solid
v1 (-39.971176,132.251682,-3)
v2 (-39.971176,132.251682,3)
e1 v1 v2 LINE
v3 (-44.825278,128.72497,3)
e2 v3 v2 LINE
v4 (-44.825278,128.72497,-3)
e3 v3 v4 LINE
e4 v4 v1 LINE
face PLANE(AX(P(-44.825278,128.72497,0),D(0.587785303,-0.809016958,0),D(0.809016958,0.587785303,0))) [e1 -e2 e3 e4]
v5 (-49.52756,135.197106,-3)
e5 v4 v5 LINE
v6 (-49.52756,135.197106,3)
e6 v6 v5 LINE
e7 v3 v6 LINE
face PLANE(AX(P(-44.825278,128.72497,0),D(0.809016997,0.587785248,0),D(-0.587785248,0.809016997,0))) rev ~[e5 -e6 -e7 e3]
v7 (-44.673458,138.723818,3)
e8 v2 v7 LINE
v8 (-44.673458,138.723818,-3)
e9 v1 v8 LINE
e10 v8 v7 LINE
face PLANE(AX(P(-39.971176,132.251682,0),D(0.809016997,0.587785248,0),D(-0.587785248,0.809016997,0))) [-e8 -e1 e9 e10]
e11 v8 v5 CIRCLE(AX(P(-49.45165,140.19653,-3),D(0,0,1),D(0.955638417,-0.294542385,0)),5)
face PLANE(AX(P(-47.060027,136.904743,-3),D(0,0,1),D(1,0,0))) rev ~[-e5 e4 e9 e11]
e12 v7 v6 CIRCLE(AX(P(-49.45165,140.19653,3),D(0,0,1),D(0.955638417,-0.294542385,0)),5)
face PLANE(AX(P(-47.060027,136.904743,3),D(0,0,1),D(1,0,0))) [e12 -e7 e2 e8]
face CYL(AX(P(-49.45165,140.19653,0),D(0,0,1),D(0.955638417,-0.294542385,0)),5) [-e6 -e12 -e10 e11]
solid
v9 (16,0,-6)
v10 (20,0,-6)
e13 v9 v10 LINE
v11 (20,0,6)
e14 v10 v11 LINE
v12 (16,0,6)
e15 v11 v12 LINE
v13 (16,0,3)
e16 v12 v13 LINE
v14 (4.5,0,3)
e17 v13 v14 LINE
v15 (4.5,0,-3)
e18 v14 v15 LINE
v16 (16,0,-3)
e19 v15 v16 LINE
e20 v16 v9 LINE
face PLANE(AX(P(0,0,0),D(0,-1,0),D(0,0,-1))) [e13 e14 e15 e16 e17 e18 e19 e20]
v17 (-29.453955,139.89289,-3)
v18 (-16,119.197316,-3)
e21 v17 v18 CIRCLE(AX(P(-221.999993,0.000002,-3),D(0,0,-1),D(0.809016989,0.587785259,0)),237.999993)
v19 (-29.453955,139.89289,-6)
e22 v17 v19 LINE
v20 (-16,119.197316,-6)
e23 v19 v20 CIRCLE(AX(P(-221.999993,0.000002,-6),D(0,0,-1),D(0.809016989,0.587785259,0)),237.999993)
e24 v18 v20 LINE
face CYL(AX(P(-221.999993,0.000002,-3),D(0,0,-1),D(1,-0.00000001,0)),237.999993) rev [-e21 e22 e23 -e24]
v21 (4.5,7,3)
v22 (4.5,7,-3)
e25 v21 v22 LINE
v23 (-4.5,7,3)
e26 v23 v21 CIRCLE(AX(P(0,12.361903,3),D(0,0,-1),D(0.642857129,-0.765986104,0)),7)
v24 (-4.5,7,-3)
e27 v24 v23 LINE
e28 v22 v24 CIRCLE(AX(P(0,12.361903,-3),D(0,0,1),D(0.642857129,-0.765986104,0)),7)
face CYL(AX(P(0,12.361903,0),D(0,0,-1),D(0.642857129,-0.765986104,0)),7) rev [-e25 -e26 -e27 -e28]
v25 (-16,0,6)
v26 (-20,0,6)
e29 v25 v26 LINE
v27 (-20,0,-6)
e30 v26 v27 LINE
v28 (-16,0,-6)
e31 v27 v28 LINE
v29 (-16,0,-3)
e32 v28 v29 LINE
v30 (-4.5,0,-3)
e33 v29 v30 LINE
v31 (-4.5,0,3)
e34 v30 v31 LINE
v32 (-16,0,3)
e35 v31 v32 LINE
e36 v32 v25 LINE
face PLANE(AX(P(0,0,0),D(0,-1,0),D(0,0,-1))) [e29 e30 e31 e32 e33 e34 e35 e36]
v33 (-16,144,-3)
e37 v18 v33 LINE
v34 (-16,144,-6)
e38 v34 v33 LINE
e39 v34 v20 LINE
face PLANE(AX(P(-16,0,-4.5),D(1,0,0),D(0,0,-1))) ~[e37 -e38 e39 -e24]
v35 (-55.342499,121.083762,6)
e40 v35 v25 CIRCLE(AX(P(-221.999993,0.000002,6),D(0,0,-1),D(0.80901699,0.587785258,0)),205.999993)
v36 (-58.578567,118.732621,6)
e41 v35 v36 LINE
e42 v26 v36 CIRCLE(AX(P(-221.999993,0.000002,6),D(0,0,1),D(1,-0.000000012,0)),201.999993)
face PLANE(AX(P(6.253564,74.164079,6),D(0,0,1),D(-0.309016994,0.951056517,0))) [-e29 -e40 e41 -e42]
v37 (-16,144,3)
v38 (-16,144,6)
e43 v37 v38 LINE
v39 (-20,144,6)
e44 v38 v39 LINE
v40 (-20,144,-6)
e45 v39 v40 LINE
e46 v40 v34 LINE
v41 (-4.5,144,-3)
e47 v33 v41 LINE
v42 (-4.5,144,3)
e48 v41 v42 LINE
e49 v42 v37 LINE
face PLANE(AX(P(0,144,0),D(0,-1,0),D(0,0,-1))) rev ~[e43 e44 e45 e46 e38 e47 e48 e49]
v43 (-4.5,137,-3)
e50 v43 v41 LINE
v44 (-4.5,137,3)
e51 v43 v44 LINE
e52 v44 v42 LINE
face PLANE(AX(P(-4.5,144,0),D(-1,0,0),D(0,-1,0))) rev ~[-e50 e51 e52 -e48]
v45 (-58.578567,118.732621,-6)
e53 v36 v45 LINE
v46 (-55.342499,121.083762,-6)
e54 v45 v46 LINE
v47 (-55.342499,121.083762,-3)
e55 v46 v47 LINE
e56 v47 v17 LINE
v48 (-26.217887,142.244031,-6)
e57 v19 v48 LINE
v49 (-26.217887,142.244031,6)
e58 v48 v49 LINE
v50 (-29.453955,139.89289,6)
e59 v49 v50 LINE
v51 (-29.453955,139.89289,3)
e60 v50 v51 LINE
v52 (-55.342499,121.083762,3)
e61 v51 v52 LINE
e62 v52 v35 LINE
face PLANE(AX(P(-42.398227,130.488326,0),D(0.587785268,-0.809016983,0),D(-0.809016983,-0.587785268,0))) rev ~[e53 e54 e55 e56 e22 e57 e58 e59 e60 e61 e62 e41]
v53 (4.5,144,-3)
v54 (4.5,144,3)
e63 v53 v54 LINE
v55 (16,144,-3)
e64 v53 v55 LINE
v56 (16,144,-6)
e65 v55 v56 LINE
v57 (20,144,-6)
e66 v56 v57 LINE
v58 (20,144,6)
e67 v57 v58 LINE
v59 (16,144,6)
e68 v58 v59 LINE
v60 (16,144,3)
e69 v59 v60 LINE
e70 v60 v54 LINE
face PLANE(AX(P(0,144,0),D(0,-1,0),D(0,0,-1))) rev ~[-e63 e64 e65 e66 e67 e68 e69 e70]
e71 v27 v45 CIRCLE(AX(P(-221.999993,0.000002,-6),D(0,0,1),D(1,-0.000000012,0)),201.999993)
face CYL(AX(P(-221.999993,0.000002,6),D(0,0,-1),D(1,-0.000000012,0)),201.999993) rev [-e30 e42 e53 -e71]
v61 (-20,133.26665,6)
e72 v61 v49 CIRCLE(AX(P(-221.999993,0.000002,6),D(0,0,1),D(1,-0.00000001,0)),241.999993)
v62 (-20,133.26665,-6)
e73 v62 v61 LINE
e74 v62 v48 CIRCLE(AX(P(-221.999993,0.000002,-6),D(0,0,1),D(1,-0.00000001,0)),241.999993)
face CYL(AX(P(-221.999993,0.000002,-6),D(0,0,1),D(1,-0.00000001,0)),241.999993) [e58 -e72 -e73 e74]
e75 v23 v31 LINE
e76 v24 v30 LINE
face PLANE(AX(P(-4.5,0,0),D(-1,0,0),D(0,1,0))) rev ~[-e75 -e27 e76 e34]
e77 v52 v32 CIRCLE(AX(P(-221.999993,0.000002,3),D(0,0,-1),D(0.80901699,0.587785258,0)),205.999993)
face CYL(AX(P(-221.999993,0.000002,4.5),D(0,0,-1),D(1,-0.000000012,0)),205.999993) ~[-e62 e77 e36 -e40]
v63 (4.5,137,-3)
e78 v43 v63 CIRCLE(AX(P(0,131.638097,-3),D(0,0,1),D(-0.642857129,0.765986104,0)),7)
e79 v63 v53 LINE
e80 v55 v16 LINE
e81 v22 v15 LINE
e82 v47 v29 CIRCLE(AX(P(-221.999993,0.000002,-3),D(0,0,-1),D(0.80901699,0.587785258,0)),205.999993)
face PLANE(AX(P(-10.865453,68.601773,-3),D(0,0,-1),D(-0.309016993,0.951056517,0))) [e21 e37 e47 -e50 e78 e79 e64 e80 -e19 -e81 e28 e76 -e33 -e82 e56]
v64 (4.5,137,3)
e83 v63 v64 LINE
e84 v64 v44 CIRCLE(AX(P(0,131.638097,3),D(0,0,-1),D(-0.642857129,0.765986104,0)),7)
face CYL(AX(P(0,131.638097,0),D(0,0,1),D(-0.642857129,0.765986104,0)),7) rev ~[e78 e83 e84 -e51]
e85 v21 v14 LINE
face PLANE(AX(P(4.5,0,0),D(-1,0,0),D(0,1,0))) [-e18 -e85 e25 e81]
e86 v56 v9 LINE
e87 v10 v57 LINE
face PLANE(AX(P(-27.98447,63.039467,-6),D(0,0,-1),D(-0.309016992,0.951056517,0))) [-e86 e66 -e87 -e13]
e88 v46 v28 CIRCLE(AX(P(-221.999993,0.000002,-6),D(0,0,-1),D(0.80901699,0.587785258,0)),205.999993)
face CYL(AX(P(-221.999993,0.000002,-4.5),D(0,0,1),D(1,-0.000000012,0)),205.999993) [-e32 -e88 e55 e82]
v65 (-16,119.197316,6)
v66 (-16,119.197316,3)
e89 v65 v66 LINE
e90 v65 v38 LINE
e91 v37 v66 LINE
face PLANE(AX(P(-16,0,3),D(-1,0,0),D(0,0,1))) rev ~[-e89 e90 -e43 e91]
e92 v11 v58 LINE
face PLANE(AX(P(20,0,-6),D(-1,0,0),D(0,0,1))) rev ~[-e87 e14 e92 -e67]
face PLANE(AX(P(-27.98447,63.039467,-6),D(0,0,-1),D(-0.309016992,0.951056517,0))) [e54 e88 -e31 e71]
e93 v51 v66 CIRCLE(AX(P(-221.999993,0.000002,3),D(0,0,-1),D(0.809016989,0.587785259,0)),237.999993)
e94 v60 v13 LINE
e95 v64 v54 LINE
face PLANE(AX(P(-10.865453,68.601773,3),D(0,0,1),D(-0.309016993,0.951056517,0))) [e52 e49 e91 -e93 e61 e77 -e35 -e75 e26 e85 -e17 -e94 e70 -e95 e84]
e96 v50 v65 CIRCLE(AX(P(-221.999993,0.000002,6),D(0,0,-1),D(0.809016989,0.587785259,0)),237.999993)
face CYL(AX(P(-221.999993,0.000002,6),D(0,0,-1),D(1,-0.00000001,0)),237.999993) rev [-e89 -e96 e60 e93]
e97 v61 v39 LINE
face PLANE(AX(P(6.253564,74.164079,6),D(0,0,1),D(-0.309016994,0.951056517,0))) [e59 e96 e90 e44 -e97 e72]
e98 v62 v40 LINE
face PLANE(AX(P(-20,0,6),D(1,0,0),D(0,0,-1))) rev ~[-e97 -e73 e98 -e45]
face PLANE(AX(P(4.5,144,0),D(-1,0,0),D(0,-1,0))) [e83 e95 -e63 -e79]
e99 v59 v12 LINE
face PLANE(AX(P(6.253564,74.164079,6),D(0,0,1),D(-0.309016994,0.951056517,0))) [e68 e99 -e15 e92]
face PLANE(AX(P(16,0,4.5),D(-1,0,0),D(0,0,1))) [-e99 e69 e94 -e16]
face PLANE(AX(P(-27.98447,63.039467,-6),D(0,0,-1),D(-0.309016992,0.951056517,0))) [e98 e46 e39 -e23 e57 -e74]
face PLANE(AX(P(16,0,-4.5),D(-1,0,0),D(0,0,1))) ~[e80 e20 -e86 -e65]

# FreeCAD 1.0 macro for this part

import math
import FreeCAD as App
import Part
import Sketcher
Q = App.Units.Quantity


def add_polygon(sketch, points):
    """Adds a closed chain of lines whose ends are joined by coincident constraints."""
    first, n = sketch.GeometryCount, len(points)
    for a, b in zip(points, points[1:] + points[:1]):
        sketch.addGeometry(Part.LineSegment(App.Vector(*a, 0), App.Vector(*b, 0)), False)
    for i in range(n):
        sketch.addConstraint(Sketcher.Constraint("Coincident", first + i, 2, first + (i + 1) % n, 1))

doc = App.newDocument("Part")
body = doc.addObject("PartDesign::Body", "Body")

sketch1 = body.newObject("Sketcher::SketchObject", "Sketch")
sketch1.AttachmentSupport = (doc.getObject("XZ_Plane"), [""])
sketch1.MapMode = "FlatFace"
add_polygon(sketch1, [(-20, 6), (-20, -6), (-16, -6), (-16, -3), (16, -3), (16, -6), (20, -6), (20, 6), (16, 6), (16, 3), (-16, 3), (-16, 6)])
sketch1.addConstraint([
    Sketcher.Constraint("Vertical", 0),
    Sketcher.Constraint("Horizontal", 1),
    Sketcher.Constraint("Vertical", 2),
    Sketcher.Constraint("Horizontal", 3),
    Sketcher.Constraint("Vertical", 4),
    Sketcher.Constraint("Horizontal", 5),
    Sketcher.Constraint("Vertical", 6),
    Sketcher.Constraint("Horizontal", 7),
    Sketcher.Constraint("Vertical", 8),
    Sketcher.Constraint("Horizontal", 9),
    Sketcher.Constraint("Vertical", 10),
    Sketcher.Constraint("Horizontal", 11),
    Sketcher.Constraint("Symmetric", 0, 2, 6, 2, -1, 1),
    Sketcher.Constraint("Symmetric", 2, 2, 8, 2, -1, 1),
    Sketcher.Constraint("Symmetric", 4, 2, 10, 2, -1, 1),
    Sketcher.Constraint("Symmetric", 1, 2, 4, 2, -2),
    Sketcher.Constraint("DistanceX", 1, 1, 1, 2, 4.0),
    Sketcher.Constraint("DistanceX", 3, 1, 3, 2, 32.0),
    Sketcher.Constraint("DistanceY", 0, 2, 0, 1, 12.0),
    Sketcher.Constraint("DistanceY", 2, 1, 2, 2, 3.0),
])

sketch2 = body.newObject("Sketcher::SketchObject", "Sketch001")
sketch2.AttachmentSupport = (doc.getObject("XY_Plane"), [""])
sketch2.MapMode = "FlatFace"
sketch2.addGeometry(Part.ArcOfCircle(Part.Circle(App.Vector(-222, 0, 0), App.Vector(0, 0, 1), 222), math.radians(0), math.radians(36)), False)
sketch2.addConstraint([
    Sketcher.Constraint("Coincident", 0, 1, -1, 1),
    Sketcher.Constraint("Radius", 0, 221.999993),
    Sketcher.Constraint("DistanceX", 0, 2, -1, 1, 42.398227),
    Sketcher.Constraint("DistanceY", -1, 1, 0, 2, 130.488326),
])
doc.recompute()

additivepipe = body.newObject("PartDesign::AdditivePipe", "AdditivePipe")
additivepipe.Profile = sketch1
additivepipe.Spine = (sketch2, ["Edge1"])

sketch3 = body.newObject("Sketcher::SketchObject", "Sketch002")
sketch3.AttachmentSupport = (doc.getObject("XZ_Plane"), [""])
sketch3.MapMode = "FlatFace"
add_polygon(sketch3, [(-20, 6), (-20, -6), (-16, -6), (-16, -3), (16, -3), (16, -6), (20, -6), (20, 6), (16, 6), (16, 3), (-16, 3), (-16, 6)])
sketch3.addConstraint([
    Sketcher.Constraint("Vertical", 0),
    Sketcher.Constraint("Horizontal", 1),
    Sketcher.Constraint("Vertical", 2),
    Sketcher.Constraint("Horizontal", 3),
    Sketcher.Constraint("Vertical", 4),
    Sketcher.Constraint("Horizontal", 5),
    Sketcher.Constraint("Vertical", 6),
    Sketcher.Constraint("Horizontal", 7),
    Sketcher.Constraint("Vertical", 8),
    Sketcher.Constraint("Horizontal", 9),
    Sketcher.Constraint("Vertical", 10),
    Sketcher.Constraint("Horizontal", 11),
    Sketcher.Constraint("Symmetric", 0, 2, 6, 2, -1, 1),
    Sketcher.Constraint("Symmetric", 2, 2, 8, 2, -1, 1),
    Sketcher.Constraint("Symmetric", 4, 2, 10, 2, -1, 1),
    Sketcher.Constraint("Symmetric", 1, 2, 4, 2, -2),
    Sketcher.Constraint("DistanceX", 1, 1, 1, 2, 4.0),
    Sketcher.Constraint("DistanceX", 3, 1, 3, 2, 32.0),
    Sketcher.Constraint("DistanceY", 0, 2, 0, 1, 12.0),
    Sketcher.Constraint("DistanceY", 2, 1, 2, 2, 3.0),
])

sketch4 = body.newObject("Sketcher::SketchObject", "Sketch003")
sketch4.AttachmentSupport = (doc.getObject("XY_Plane"), [""])
sketch4.MapMode = "FlatFace"
sketch4.addGeometry(Part.LineSegment(App.Vector(0, 0, 0), App.Vector(0, 144, 0)), False)
sketch4.addConstraint([
    Sketcher.Constraint("Vertical", 0),
    Sketcher.Constraint("Coincident", 0, 1, -1, 1),
    Sketcher.Constraint("DistanceY", 0, 1, 0, 2, 144.0),
])
doc.recompute()

additivepipe2 = body.newObject("PartDesign::AdditivePipe", "AdditivePipe001")
additivepipe2.Profile = sketch3
additivepipe2.Spine = (sketch4, ["Edge1"])

sketch5 = body.newObject("Sketcher::SketchObject", "Sketch004")
sketch5.AttachmentSupport = (doc.getObject("XZ_Plane"), [""])
sketch5.MapMode = "FlatFace"
add_polygon(sketch5, [(-16, 6), (-16, 3), (16, 3), (16, 6)])
sketch5.addConstraint([
    Sketcher.Constraint("Vertical", 0),
    Sketcher.Constraint("Horizontal", 1),
    Sketcher.Constraint("Vertical", 2),
    Sketcher.Constraint("Horizontal", 3),
    Sketcher.Constraint("DistanceX", 1, 1, 1, 2, 32.0),
    Sketcher.Constraint("DistanceY", 0, 2, 0, 1, 3.0),
    Sketcher.Constraint("DistanceX", 0, 2, -1, 1, 16.0),
    Sketcher.Constraint("DistanceY", -1, 1, 0, 2, 3.0),
])

sketch6 = body.newObject("Sketcher::SketchObject", "Sketch005")
sketch6.AttachmentSupport = (doc.getObject("XY_Plane"), [""])
sketch6.MapMode = "FlatFace"
sketch6.addGeometry(Part.ArcOfCircle(Part.Circle(App.Vector(-222, 0, 0), App.Vector(0, 0, 1), 222), math.radians(0), math.radians(36)), False)
sketch6.addConstraint([
    Sketcher.Constraint("Coincident", 0, 1, -1, 1),
    Sketcher.Constraint("Radius", 0, 221.999993),
    Sketcher.Constraint("DistanceX", 0, 2, -1, 1, 42.398227),
    Sketcher.Constraint("DistanceY", -1, 1, 0, 2, 130.488326),
])
doc.recompute()

subtractivepipe = body.newObject("PartDesign::SubtractivePipe", "SubtractivePipe")
subtractivepipe.Profile = sketch5
subtractivepipe.Spine = (sketch6, ["Edge1"])

sketch7 = body.newObject("Sketcher::SketchObject", "Sketch006")
sketch7.AttachmentSupport = (doc.getObject("XZ_Plane"), [""])
sketch7.MapMode = "FlatFace"
add_polygon(sketch7, [(-16, 6), (-16, 3), (16, 3), (16, 6)])
sketch7.addConstraint([
    Sketcher.Constraint("Vertical", 0),
    Sketcher.Constraint("Horizontal", 1),
    Sketcher.Constraint("Vertical", 2),
    Sketcher.Constraint("Horizontal", 3),
    Sketcher.Constraint("DistanceX", 1, 1, 1, 2, 32.0),
    Sketcher.Constraint("DistanceY", 0, 2, 0, 1, 3.0),
    Sketcher.Constraint("DistanceX", 0, 2, -1, 1, 16.0),
    Sketcher.Constraint("DistanceY", -1, 1, 0, 2, 3.0),
])

sketch8 = body.newObject("Sketcher::SketchObject", "Sketch007")
sketch8.AttachmentSupport = (doc.getObject("XY_Plane"), [""])
sketch8.MapMode = "FlatFace"
sketch8.addGeometry(Part.LineSegment(App.Vector(0, 0, 0), App.Vector(0, 144, 0)), False)
sketch8.addConstraint([
    Sketcher.Constraint("Vertical", 0),
    Sketcher.Constraint("Coincident", 0, 1, -1, 1),
    Sketcher.Constraint("DistanceY", 0, 1, 0, 2, 144.0),
])
doc.recompute()

subtractivepipe2 = body.newObject("PartDesign::SubtractivePipe", "SubtractivePipe001")
subtractivepipe2.Profile = sketch7
subtractivepipe2.Spine = (sketch8, ["Edge1"])
doc.recompute()

mirrored = body.newObject("PartDesign::Mirrored", "Mirrored")
mirrored.Originals = [subtractivepipe]
mirrored.MirrorPlane = (doc.getObject("XY_Plane"), [""])
body.Tip = mirrored
doc.recompute()

mirrored2 = body.newObject("PartDesign::Mirrored", "Mirrored001")
mirrored2.Originals = [subtractivepipe2]
mirrored2.MirrorPlane = (doc.getObject("XY_Plane"), [""])
body.Tip = mirrored2

sketch9 = body.newObject("Sketcher::SketchObject", "Sketch008")
sketch9.AttachmentSupport = (doc.getObject("XY_Plane"), [""])
sketch9.MapMode = "FlatFace"
sketch9.addGeometry([
    Part.LineSegment(App.Vector(-4, 0, 0), App.Vector(4, 0, 0)),
    Part.LineSegment(App.Vector(4, 0, 0), App.Vector(4, 7, 0)),
    Part.ArcOfCircle(Part.Circle(App.Vector(0, 12, 0), App.Vector(0, 0, 1), 7), math.radians(-50), math.radians(230)),
    Part.LineSegment(App.Vector(-4, 7, 0), App.Vector(-4, 0, 0)),
], False)
sketch9.addConstraint([
    Sketcher.Constraint("Coincident", 0, 2, 1, 1),
    Sketcher.Constraint("Coincident", 1, 2, 2, 1),
    Sketcher.Constraint("Coincident", 2, 2, 3, 1),
    Sketcher.Constraint("Coincident", 3, 2, 0, 1),
    Sketcher.Constraint("Horizontal", 0),
    Sketcher.Constraint("Vertical", 1),
    Sketcher.Constraint("Vertical", 3),
    Sketcher.Constraint("Symmetric", 0, 2, 3, 2, -1, 1),
    Sketcher.Constraint("PointOnObject", 2, 3, -2),
    Sketcher.Constraint("Radius", 2, 7.0),
    Sketcher.Constraint("DistanceX", 0, 1, 0, 2, 9.0),
    Sketcher.Constraint("DistanceY", 1, 1, 1, 2, 7.0),
])
pocket1 = body.newObject("PartDesign::Pocket", "Pocket")
pocket1.Profile = sketch9
pocket1.Type = "ThroughAll"
pocket1.Midplane = True

sketch10 = body.newObject("Sketcher::SketchObject", "Sketch009")
sketch10.AttachmentSupport = (doc.getObject("XY_Plane"), [""])
sketch10.MapMode = "FlatFace"
sketch10.addGeometry([
    Part.LineSegment(App.Vector(4, 144, 0), App.Vector(-4, 144, 0)),
    Part.LineSegment(App.Vector(-4, 144, 0), App.Vector(-4, 137, 0)),
    Part.ArcOfCircle(Part.Circle(App.Vector(0, 132, 0), App.Vector(0, 0, 1), 7), math.radians(130), math.radians(410)),
    Part.LineSegment(App.Vector(4, 137, 0), App.Vector(4, 144, 0)),
], False)
sketch10.addConstraint([
    Sketcher.Constraint("Coincident", 0, 2, 1, 1),
    Sketcher.Constraint("Coincident", 1, 2, 2, 1),
    Sketcher.Constraint("Coincident", 2, 2, 3, 1),
    Sketcher.Constraint("Coincident", 3, 2, 0, 1),
    Sketcher.Constraint("Horizontal", 0),
    Sketcher.Constraint("Vertical", 1),
    Sketcher.Constraint("Vertical", 3),
    Sketcher.Constraint("Symmetric", 1, 2, 2, 2, -2),
    Sketcher.Constraint("Radius", 2, 7.0),
    Sketcher.Constraint("DistanceX", 0, 2, 0, 1, 9.0),
    Sketcher.Constraint("DistanceY", 1, 2, 1, 1, 7.0),
    Sketcher.Constraint("DistanceY", -1, 1, 0, 2, 144.0),
])
pocket2 = body.newObject("PartDesign::Pocket", "Pocket001")
pocket2.Profile = sketch10
pocket2.Type = "ThroughAll"
pocket2.Midplane = True
body2 = doc.addObject("PartDesign::Body", "Body001")

sketch11 = body2.newObject("Sketcher::SketchObject", "Sketch010")
sketch11.AttachmentSupport = (doc.getObject("XY_Plane001"), [""])
sketch11.MapMode = "FlatFace"
sketch11.addGeometry([
    Part.LineSegment(App.Vector(-45, 129, 0), App.Vector(-40, 132, 0)),
    Part.LineSegment(App.Vector(-40, 132, 0), App.Vector(-45, 139, 0)),
    Part.ArcOfCircle(Part.Circle(App.Vector(-49, 140, 0), App.Vector(0, 0, 1), 5), math.radians(-17), math.radians(269)),
    Part.LineSegment(App.Vector(-50, 135, 0), App.Vector(-45, 129, 0)),
], False)
sketch11.addConstraint([
    Sketcher.Constraint("Coincident", 0, 2, 1, 1),
    Sketcher.Constraint("Coincident", 1, 2, 2, 1),
    Sketcher.Constraint("Coincident", 2, 2, 3, 1),
    Sketcher.Constraint("Coincident", 3, 2, 0, 1),
    Sketcher.Constraint("Perpendicular", 0, 1),
    Sketcher.Constraint("Parallel", 1, 3),
    Sketcher.Constraint("Equal", 1, 3),
    Sketcher.Constraint("Radius", 2, 5.0),
    Sketcher.Constraint("Angle", 0, Q("36.000004 deg")),
    Sketcher.Constraint("Distance", 0, 6.0),
    Sketcher.Constraint("Distance", 1, 8.0),
    Sketcher.Constraint("DistanceX", 2, 3, -1, 1, 49.45165),
    Sketcher.Constraint("DistanceY", -1, 1, 2, 3, 140.19653),
])
pad1 = body2.newObject("PartDesign::Pad", "Pad")
pad1.Profile = sketch11
pad1.Length = 6
pad1.Midplane = True

doc.recompute()
